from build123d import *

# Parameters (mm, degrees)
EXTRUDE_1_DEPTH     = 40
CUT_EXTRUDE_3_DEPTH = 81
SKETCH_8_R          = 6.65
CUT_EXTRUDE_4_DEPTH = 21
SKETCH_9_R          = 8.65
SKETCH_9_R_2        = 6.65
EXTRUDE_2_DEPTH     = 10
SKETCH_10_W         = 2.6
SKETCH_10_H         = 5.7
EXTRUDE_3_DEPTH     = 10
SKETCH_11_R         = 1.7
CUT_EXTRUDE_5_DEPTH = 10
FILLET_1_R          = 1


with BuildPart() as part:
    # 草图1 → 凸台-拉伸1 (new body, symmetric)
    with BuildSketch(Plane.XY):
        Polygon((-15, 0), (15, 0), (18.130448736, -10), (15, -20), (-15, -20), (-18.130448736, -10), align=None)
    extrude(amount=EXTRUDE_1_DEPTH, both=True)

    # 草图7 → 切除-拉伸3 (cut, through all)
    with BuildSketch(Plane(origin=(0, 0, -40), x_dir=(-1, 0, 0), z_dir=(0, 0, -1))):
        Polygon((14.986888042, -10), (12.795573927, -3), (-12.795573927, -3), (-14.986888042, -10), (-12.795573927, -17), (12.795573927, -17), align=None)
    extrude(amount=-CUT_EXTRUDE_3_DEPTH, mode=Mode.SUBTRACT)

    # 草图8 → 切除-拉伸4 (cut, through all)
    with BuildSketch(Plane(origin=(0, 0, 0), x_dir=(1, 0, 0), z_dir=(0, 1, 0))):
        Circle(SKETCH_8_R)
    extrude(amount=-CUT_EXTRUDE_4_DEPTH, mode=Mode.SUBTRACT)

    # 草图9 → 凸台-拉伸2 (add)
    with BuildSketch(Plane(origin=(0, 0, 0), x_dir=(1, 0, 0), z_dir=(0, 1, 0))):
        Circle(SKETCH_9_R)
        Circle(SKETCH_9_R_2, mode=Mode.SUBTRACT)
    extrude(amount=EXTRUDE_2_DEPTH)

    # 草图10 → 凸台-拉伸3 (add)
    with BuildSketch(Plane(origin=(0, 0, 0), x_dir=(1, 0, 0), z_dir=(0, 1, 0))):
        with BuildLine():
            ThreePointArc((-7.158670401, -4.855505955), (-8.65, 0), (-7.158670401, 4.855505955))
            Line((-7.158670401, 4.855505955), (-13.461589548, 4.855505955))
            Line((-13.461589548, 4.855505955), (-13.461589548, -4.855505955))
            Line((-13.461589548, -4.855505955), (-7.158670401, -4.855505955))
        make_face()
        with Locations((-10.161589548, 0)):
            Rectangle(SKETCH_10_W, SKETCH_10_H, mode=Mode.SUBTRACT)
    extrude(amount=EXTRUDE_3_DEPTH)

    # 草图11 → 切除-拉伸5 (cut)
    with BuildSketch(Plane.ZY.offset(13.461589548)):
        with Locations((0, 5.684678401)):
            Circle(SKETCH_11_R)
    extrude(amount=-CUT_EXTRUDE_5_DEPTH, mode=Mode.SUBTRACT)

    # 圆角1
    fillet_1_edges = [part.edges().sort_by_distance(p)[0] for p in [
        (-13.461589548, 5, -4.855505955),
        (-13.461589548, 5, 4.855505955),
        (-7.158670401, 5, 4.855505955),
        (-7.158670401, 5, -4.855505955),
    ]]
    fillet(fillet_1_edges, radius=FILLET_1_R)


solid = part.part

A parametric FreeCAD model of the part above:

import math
import FreeCAD as App
import Part
import Sketcher

V = App.Vector
Q = App.Units.Quantity


def edges_at(feature, points):
    """Names of the edges that pass closest to the given points."""
    edges = feature.Shape.Edges
    near = lambda p: min(range(len(edges)), key=lambda i: edges[i].distToShape(Part.Vertex(*p))[0])
    return sorted({f"Edge{near(p) + 1}" for p in points})

doc = App.newDocument("Part")
body = doc.addObject("PartDesign::Body", "Body")

# Sketch on XY plane
sketch1 = body.newObject("Sketcher::SketchObject", "Sketch")
sketch1.AttachmentSupport = (doc.getObject("XY_Plane"), [""])
sketch1.MapMode = "FlatFace"
sketch1.addGeometry([
    Part.LineSegment(V(15, 0, 0), V(-15, 0, 0)),  # 0
    Part.LineSegment(V(-15, 0, 0), V(-18, -10, 0)),  # 1
    Part.LineSegment(V(-18, -10, 0), V(-15, -20, 0)),  # 2
    Part.LineSegment(V(-15, -20, 0), V(15, -20, 0)),  # 3
    Part.LineSegment(V(15, -20, 0), V(18, -10, 0)),  # 4
    Part.LineSegment(V(18, -10, 0), V(15, 0, 0)),  # 5
], False)
sketch1.addConstraint([
    Sketcher.Constraint("Coincident", 0, 2, 1, 1),
    Sketcher.Constraint("Coincident", 1, 2, 2, 1),
    Sketcher.Constraint("Coincident", 2, 2, 3, 1),
    Sketcher.Constraint("Coincident", 3, 2, 4, 1),
    Sketcher.Constraint("Coincident", 4, 2, 5, 1),
    Sketcher.Constraint("Coincident", 5, 2, 0, 1),
    Sketcher.Constraint("Horizontal", 0),
    Sketcher.Constraint("Horizontal", 3),
    Sketcher.Constraint("Symmetric", 0, 2, 5, 2, -1, 1),
    Sketcher.Constraint("Symmetric", 1, 2, 4, 2, -2),
    Sketcher.Constraint("Parallel", 1, 4),
    Sketcher.Constraint("Parallel", 2, 5),
    Sketcher.Constraint("Vertical", 0, 2, 2, 2),
    Sketcher.Constraint("DistanceX", 0, 2, 0, 1, Q("30 mm")),
    Sketcher.Constraint("DistanceY", 1, 2, -1, 1, Q("10 mm")),
    Sketcher.Constraint("DistanceX", 1, 2, -1, 1, Q("18.130449 mm")),
])
pad1 = body.newObject("PartDesign::Pad", "Pad")
pad1.Profile = sketch1
pad1.Length = 80
pad1.Midplane = True

# Sketch on XY plane
sketch2 = body.newObject("Sketcher::SketchObject", "Sketch001")
sketch2.AttachmentSupport = (doc.getObject("XY_Plane"), [""])
sketch2.MapMode = "FlatFace"
sketch2.AttachmentOffset = App.Placement(V(0, 0, -40), App.Rotation())
sketch2.addGeometry([
    Part.LineSegment(V(-15, -10, 0), V(-13, -3, 0)),  # 0
    Part.LineSegment(V(-13, -3, 0), V(13, -3, 0)),  # 1
    Part.LineSegment(V(13, -3, 0), V(15, -10, 0)),  # 2
    Part.LineSegment(V(15, -10, 0), V(13, -17, 0)),  # 3
    Part.LineSegment(V(13, -17, 0), V(-13, -17, 0)),  # 4
    Part.LineSegment(V(-13, -17, 0), V(-15, -10, 0)),  # 5
], False)
sketch2.addConstraint([
    Sketcher.Constraint("Coincident", 0, 2, 1, 1),
    Sketcher.Constraint("Coincident", 1, 2, 2, 1),
    Sketcher.Constraint("Coincident", 2, 2, 3, 1),
    Sketcher.Constraint("Coincident", 3, 2, 4, 1),
    Sketcher.Constraint("Coincident", 4, 2, 5, 1),
    Sketcher.Constraint("Coincident", 5, 2, 0, 1),
    Sketcher.Constraint("Horizontal", 1),
    Sketcher.Constraint("Horizontal", 4),
    Sketcher.Constraint("Symmetric", 2, 2, 5, 2, -2),
    Sketcher.Constraint("Parallel", 0, 3),
    Sketcher.Constraint("Parallel", 2, 5),
    Sketcher.Constraint("Vertical", 1, 2, 3, 2),
    Sketcher.Constraint("Vertical", 0, 2, 4, 2),
    Sketcher.Constraint("DistanceY", 0, 2, -1, 1, Q("3 mm")),
    Sketcher.Constraint("DistanceY", 2, 2, -1, 1, Q("10 mm")),
    Sketcher.Constraint("DistanceX", 1, 1, 1, 2, Q("25.591148 mm")),
    Sketcher.Constraint("DistanceX", -1, 1, 2, 2, Q("14.986888 mm")),
])
pocket1 = body.newObject("PartDesign::Pocket", "Pocket")
pocket1.Profile = sketch2
pocket1.Type = "ThroughAll"
pocket1.Reversed = True

# Sketch on XZ plane
sketch3 = body.newObject("Sketcher::SketchObject", "Sketch002")
sketch3.AttachmentSupport = (doc.getObject("XZ_Plane"), [""])
sketch3.MapMode = "FlatFace"
sketch3.addGeometry(Part.Circle(V(0, 0, 0), V(0, 0, 1), 7), False)
sketch3.addConstraint([
    Sketcher.Constraint("Coincident", 0, 3, -1, 1),
    Sketcher.Constraint("Diameter", 0, Q("13.3 mm")),
])
pocket2 = body.newObject("PartDesign::Pocket", "Pocket001")
pocket2.Profile = sketch3
pocket2.Type = "ThroughAll"
pocket2.Reversed = True

# Sketch on XZ plane
sketch4 = body.newObject("Sketcher::SketchObject", "Sketch003")
sketch4.AttachmentSupport = (doc.getObject("XZ_Plane"), [""])
sketch4.MapMode = "FlatFace"
sketch4.addGeometry([
    Part.Circle(V(0, 0, 0), V(0, 0, 1), 9),
    Part.Circle(V(0, 0, 0), V(0, 0, 1), 7),
], False)
sketch4.addConstraint([
    Sketcher.Constraint("Coincident", 0, 3, -1, 1),
    Sketcher.Constraint("Coincident", 1, 3, -1, 1),
    Sketcher.Constraint("Diameter", 0, Q("17.3 mm")),
    Sketcher.Constraint("Diameter", 1, Q("13.3 mm")),
])
pad2 = body.newObject("PartDesign::Pad", "Pad001")
pad2.Profile = sketch4
pad2.Length = 10
pad2.Reversed = True

# Sketch on XZ plane
sketch5 = body.newObject("Sketcher::SketchObject", "Sketch004")
sketch5.AttachmentSupport = (doc.getObject("XZ_Plane"), [""])
sketch5.MapMode = "FlatFace"
sketch5.addGeometry([
    Part.ArcOfCircle(Part.Circle(V(0, 0, 0), V(0, 0, 1), 8.6), math.radians(146), math.radians(214)),  # 0
    Part.LineSegment(V(-7.2, -4.9, 0), V(-13.5, -4.9, 0)),  # 1
    Part.LineSegment(V(-13.5, -4.9, 0), V(-13.5, 4.9, 0)),  # 2
    Part.LineSegment(V(-13.5, 4.9, 0), V(-7.2, 4.9, 0)),  # 3
    Part.LineSegment(V(-8.9, 2.9, 0), V(-11.5, 2.9, 0)),  # 4
    Part.LineSegment(V(-11.5, 2.9, 0), V(-11.5, -2.9, 0)),  # 5
    Part.LineSegment(V(-11.5, -2.9, 0), V(-8.9, -2.9, 0)),  # 6
    Part.LineSegment(V(-8.9, -2.9, 0), V(-8.9, 2.9, 0)),  # 7
], False)
sketch5.addConstraint([
    Sketcher.Constraint("Coincident", 0, 2, 1, 1),
    Sketcher.Constraint("Coincident", 1, 2, 2, 1),
    Sketcher.Constraint("Coincident", 2, 2, 3, 1),
    Sketcher.Constraint("Coincident", 3, 2, 0, 1),
    Sketcher.Constraint("Coincident", 4, 2, 5, 1),
    Sketcher.Constraint("Coincident", 5, 2, 6, 1),
    Sketcher.Constraint("Coincident", 6, 2, 7, 1),
    Sketcher.Constraint("Coincident", 7, 2, 4, 1),
    Sketcher.Constraint("Horizontal", 1),
    Sketcher.Constraint("Vertical", 2),
    Sketcher.Constraint("Horizontal", 3),
    Sketcher.Constraint("Horizontal", 4),
    Sketcher.Constraint("Vertical", 5),
    Sketcher.Constraint("Horizontal", 6),
    Sketcher.Constraint("Vertical", 7),
    Sketcher.Constraint("Coincident", 0, 3, -1, 1),
    Sketcher.Constraint("Vertical", 0, 2, 3, 2),
    Sketcher.Constraint("Radius", 0, Q("8.65 mm")),
    Sketcher.Constraint("DistanceX", 4, 2, 4, 1, Q("2.6 mm")),
    Sketcher.Constraint("DistanceY", 5, 2, 5, 1, Q("5.7 mm")),
    Sketcher.Constraint("DistanceX", 2, 2, 4, 2, Q("2 mm")),
    Sketcher.Constraint("DistanceY", -1, 1, 4, 2, Q("2.85 mm")),
    Sketcher.Constraint("DistanceX", 1, 2, 1, 1, Q("6.302919 mm")),
    Sketcher.Constraint("DistanceY", 2, 1, 2, 2, Q("9.711012 mm")),
])
pad3 = body.newObject("PartDesign::Pad", "Pad002")
pad3.Profile = sketch5
pad3.Length = 10
pad3.Reversed = True

# Sketch on YZ plane
sketch6 = body.newObject("Sketcher::SketchObject", "Sketch005")
sketch6.AttachmentSupport = (doc.getObject("YZ_Plane"), [""])
sketch6.MapMode = "FlatFace"
sketch6.AttachmentOffset = App.Placement(V(0, 0, -13.46159), App.Rotation())
sketch6.addGeometry(Part.Circle(V(5.7, 0, 0), V(0, 0, 1), 1.7), False)
sketch6.addConstraint([
    Sketcher.Constraint("PointOnObject", 0, 3, -1),
    Sketcher.Constraint("Diameter", 0, Q("3.4 mm")),
    Sketcher.Constraint("DistanceX", -1, 1, 0, 3, Q("5.684678 mm")),
])
pocket3 = body.newObject("PartDesign::Pocket", "Pocket002")
pocket3.Profile = sketch6
pocket3.Length = 10
pocket3.Reversed = True
doc.recompute()

fillet = body.newObject("PartDesign::Fillet", "Fillet")
fillet.Base = (pocket3, edges_at(pocket3, [
    (-13.462, 5, -4.856),
    (-13.462, 5, 4.856),
    (-7.159, 5, 4.856),
    (-7.159, 5, -4.856),
]))
fillet.Radius = 1

doc.recompute()
